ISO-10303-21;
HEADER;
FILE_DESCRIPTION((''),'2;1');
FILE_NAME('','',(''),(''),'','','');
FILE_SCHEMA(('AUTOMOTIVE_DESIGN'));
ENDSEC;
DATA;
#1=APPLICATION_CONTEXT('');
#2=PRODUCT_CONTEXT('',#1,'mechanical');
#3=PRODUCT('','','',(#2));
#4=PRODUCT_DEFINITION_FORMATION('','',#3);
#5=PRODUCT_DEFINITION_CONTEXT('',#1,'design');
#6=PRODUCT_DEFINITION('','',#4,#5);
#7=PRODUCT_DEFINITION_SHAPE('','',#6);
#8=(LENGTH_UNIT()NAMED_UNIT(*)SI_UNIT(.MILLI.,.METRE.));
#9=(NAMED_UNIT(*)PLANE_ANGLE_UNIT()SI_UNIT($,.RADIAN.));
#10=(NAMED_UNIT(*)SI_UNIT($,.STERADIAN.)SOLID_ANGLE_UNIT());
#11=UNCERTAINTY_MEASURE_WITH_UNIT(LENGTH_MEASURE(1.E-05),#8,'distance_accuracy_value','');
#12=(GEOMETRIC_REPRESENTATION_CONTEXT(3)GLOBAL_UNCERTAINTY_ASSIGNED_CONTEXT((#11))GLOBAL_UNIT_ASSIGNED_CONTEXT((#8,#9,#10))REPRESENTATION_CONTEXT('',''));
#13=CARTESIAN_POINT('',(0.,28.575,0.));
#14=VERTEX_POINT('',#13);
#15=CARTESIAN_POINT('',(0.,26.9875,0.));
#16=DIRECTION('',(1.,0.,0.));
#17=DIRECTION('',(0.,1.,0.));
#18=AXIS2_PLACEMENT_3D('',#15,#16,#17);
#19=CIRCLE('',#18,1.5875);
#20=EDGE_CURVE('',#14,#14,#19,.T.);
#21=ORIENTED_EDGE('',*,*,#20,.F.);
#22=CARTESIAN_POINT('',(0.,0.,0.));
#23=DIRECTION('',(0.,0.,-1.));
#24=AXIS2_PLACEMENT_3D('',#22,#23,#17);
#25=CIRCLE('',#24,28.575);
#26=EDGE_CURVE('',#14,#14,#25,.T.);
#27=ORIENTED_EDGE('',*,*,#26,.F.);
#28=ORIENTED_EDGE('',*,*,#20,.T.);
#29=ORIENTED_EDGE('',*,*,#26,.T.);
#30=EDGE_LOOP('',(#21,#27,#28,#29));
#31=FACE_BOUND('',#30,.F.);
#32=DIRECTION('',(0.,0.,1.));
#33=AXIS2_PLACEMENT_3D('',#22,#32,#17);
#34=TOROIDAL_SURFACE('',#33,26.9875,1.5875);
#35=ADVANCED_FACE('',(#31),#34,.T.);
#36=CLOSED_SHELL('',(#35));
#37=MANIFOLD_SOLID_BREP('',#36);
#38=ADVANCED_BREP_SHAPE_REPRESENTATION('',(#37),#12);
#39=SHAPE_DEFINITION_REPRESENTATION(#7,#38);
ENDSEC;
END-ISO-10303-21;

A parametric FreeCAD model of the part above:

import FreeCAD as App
import Part
import Sketcher

V = App.Vector
Q = App.Units.Quantity

doc = App.newDocument("Part")
body = doc.addObject("PartDesign::Body", "Body")

# Sketch on YZ plane
sketch1 = doc.addObject("Sketcher::SketchObject", "Sketch")
body.addObject(sketch1)
sketch1.AttachmentSupport = (doc.YZ_Plane, [""])
sketch1.MapMode = "FlatFace"
sketch1.addGeometry(Part.Circle(V(27, 0, 0), V(0, 0, 1), 1.6), False)
sketch1.addConstraint(Sketcher.Constraint("PointOnObject", 0, 3, -1))
sketch1.addConstraint(Sketcher.Constraint("Diameter", 0, Q("0.125 in")))
sketch1.addConstraint(Sketcher.Constraint("DistanceX", -1, 1, 0, 3, Q("1.0625 in")))
revolution = doc.addObject("PartDesign::Revolution", "Revolution")
body.addObject(revolution)
revolution.Profile = sketch1
revolution.ReferenceAxis = (sketch1, ["V_Axis"])
revolution.Angle = 360

doc.recompute()
